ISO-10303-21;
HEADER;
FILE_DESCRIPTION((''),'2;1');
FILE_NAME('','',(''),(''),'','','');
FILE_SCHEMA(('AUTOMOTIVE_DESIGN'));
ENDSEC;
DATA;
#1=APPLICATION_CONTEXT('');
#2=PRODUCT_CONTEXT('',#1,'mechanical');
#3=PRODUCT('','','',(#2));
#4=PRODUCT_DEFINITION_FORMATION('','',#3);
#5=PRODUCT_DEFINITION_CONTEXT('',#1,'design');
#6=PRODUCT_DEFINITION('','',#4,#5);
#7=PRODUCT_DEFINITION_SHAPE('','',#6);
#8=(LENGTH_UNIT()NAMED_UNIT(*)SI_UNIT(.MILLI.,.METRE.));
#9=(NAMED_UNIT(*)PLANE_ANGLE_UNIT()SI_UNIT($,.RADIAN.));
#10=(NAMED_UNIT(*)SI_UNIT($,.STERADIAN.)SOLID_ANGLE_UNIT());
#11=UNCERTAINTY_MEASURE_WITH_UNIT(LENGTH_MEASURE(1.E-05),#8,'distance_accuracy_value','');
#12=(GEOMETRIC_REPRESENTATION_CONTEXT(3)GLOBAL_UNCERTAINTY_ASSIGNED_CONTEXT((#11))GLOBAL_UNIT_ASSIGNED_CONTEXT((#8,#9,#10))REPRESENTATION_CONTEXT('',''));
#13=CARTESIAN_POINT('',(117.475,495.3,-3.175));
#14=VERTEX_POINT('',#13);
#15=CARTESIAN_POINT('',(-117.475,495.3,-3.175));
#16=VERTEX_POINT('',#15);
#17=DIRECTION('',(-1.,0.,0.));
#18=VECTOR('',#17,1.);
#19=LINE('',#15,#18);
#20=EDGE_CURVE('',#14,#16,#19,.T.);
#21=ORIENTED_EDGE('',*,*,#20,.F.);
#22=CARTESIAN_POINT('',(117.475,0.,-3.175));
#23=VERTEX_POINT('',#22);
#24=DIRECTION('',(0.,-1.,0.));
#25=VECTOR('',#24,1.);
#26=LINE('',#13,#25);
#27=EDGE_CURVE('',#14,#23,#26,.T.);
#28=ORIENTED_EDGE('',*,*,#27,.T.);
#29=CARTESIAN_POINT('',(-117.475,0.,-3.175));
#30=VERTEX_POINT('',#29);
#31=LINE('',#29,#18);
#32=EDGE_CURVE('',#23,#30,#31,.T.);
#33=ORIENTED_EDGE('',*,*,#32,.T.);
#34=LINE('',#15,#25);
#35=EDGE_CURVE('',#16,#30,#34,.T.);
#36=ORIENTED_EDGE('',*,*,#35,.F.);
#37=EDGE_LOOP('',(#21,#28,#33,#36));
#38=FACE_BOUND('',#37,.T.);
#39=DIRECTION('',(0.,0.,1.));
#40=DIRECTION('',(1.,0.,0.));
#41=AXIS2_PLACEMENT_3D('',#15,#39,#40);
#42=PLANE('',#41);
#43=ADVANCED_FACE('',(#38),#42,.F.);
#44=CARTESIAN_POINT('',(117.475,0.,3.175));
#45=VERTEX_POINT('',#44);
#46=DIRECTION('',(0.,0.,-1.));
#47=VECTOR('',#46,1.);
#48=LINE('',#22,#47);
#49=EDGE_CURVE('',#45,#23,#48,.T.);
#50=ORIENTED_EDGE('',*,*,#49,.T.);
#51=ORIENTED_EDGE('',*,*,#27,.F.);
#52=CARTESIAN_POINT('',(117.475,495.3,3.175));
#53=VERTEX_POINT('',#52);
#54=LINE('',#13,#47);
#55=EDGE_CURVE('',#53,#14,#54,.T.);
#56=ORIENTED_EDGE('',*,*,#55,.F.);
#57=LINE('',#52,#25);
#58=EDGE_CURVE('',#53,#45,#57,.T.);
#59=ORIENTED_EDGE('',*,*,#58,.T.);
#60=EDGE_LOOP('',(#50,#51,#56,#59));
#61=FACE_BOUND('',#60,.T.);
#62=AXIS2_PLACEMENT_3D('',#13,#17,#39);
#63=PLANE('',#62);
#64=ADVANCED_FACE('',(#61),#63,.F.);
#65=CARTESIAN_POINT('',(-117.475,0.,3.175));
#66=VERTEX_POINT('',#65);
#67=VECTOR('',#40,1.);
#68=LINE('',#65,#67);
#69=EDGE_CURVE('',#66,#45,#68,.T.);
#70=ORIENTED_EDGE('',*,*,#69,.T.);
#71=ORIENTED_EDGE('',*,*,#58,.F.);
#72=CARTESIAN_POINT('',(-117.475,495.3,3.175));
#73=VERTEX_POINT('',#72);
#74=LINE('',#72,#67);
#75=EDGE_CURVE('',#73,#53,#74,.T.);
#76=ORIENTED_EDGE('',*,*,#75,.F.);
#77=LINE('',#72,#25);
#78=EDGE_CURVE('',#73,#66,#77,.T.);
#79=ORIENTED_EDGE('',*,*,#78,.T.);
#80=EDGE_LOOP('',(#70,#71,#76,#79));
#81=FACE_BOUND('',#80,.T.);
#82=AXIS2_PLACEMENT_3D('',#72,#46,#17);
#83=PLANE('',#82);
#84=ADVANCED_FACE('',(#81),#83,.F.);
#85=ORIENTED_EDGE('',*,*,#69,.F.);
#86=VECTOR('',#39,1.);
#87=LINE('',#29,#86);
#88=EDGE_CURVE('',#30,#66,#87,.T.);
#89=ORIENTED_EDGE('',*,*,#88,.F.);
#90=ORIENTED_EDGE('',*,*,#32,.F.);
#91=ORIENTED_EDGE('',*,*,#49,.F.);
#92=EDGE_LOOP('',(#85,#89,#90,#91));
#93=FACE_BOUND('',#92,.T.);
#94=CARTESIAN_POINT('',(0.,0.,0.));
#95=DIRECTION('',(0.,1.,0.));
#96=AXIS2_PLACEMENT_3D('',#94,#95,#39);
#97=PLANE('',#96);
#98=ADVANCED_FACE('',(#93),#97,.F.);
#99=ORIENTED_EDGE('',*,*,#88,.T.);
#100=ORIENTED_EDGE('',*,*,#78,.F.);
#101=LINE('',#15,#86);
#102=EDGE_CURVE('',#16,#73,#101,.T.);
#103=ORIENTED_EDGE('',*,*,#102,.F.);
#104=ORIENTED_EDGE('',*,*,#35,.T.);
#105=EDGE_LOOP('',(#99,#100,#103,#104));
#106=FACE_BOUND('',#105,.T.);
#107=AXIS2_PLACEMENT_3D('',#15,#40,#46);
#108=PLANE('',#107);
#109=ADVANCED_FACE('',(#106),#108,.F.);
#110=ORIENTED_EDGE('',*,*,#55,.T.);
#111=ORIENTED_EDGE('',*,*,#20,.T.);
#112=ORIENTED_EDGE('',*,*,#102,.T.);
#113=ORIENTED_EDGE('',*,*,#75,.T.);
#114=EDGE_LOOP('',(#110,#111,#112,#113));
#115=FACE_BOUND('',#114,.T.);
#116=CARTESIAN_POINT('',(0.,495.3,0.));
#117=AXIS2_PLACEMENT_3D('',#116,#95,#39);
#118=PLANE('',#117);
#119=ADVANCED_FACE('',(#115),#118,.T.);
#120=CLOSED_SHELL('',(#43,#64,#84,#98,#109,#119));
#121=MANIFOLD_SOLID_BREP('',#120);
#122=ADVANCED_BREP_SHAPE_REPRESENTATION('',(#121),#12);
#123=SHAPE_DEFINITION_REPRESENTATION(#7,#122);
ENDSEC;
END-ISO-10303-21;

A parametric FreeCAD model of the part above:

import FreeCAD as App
import Part
import Sketcher
from FreeCAD import Vector
Q = App.Units.Quantity


def add_polygon(sketch, points):
    """Adds a closed chain of lines whose ends are joined by coincident constraints."""
    first, n = sketch.GeometryCount, len(points)
    for a, b in zip(points, points[1:] + points[:1]):
        sketch.addGeometry(Part.LineSegment(App.Vector(*a, 0), App.Vector(*b, 0)), False)
    for i in range(n):
        sketch.addConstraint(Sketcher.Constraint("Coincident", first + i, 2, first + (i + 1) % n, 1))

doc = App.newDocument("Part")
params = doc.addObject("Spreadsheet::Sheet", "Params")
for row, (alias, value) in enumerate([
    ("sketch1_width", "9.25 in"),
    ("sketch1_height", "0.25 in"),
    ("pad1_length", "19.5 in"),
], start=1):
    params.set(f"A{row}", alias)
    params.set(f"B{row}", "=" + value)
    params.setAlias(f"B{row}", alias)

body = doc.addObject("PartDesign::Body", "Body")

# Sketch on XZ plane
sketch1 = body.newObject("Sketcher::SketchObject", "Sketch")
sketch1.AttachmentSupport = (doc.getObject("XZ_Plane"), [""])
sketch1.MapMode = "FlatFace"
add_polygon(sketch1, [(-117, -3), (-117, 3), (117, 3), (117, -3)])  # lines 0-3
sketch1.addConstraint([
    Sketcher.Constraint("Vertical", 0),
    Sketcher.Constraint("Horizontal", 1),
    Sketcher.Constraint("Vertical", 2),
    Sketcher.Constraint("Horizontal", 3),
    Sketcher.Constraint("Symmetric", 0, 2, 2, 2, -1, 1),
    Sketcher.Constraint("DistanceX", 1, 1, 1, 2, Q("9.25 in")),
    Sketcher.Constraint("DistanceY", 0, 1, 0, 2, Q("0.25 in")),
])
sketch1.setExpression("Constraints[9]", "Params.sketch1_width")
sketch1.setExpression("Constraints[10]", "Params.sketch1_height")
pad1 = body.newObject("PartDesign::Pad", "Pad")
pad1.Profile = sketch1
pad1.setExpression("Length", "Params.pad1_length")
pad1.Reversed = True

doc.recompute()
